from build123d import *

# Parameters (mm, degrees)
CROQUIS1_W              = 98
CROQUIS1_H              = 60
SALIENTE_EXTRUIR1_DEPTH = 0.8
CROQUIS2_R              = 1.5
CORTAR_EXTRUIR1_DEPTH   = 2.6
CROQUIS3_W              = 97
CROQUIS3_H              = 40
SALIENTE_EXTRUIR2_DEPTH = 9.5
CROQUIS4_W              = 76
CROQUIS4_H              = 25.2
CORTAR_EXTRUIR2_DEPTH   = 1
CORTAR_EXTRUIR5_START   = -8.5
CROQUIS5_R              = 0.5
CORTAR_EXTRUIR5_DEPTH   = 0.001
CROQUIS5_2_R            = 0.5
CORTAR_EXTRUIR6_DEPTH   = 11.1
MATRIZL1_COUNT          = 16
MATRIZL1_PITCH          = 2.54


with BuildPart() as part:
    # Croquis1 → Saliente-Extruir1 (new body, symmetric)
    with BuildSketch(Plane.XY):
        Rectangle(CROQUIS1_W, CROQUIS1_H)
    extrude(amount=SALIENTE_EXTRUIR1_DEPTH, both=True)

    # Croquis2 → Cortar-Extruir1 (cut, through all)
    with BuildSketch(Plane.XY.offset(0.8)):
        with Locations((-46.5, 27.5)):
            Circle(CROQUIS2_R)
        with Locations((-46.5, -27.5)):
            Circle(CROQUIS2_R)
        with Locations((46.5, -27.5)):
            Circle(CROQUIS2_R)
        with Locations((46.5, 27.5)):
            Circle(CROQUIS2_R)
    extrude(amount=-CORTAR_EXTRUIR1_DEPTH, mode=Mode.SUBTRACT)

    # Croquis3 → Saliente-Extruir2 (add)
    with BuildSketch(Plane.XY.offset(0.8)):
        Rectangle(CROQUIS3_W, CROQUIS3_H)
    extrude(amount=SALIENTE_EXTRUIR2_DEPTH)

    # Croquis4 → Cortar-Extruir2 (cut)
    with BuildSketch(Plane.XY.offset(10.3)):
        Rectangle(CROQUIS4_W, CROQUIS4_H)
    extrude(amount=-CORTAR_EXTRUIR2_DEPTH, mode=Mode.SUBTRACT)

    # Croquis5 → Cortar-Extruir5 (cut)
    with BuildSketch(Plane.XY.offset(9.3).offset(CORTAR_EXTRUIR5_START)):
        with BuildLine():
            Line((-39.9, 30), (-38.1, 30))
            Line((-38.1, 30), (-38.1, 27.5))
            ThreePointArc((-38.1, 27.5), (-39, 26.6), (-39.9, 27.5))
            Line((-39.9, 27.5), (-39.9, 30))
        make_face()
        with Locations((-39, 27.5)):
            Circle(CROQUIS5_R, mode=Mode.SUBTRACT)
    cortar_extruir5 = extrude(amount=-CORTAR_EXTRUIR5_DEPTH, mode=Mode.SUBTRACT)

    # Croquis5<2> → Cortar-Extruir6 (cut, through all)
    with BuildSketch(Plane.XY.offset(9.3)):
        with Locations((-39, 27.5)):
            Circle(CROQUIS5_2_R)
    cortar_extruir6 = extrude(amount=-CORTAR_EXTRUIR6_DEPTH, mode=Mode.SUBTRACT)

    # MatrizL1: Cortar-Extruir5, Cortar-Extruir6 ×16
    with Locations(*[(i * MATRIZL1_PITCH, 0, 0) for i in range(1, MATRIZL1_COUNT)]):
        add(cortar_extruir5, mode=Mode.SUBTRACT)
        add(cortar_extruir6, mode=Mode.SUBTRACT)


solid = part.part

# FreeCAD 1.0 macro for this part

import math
import FreeCAD as App
import Part
import Sketcher

doc = App.newDocument("Part")
body = doc.addObject("PartDesign::Body", "Body")

# Sketch on XY plane
sketch1 = body.newObject("Sketcher::SketchObject", "Sketch")
sketch1.AttachmentSupport = (doc.getObject("XY_Plane"), [""])
sketch1.MapMode = "FlatFace"
sketch1.addGeometry(Part.LineSegment(App.Vector(-49, 30, 0), App.Vector(-49, -30, 0)), False)
sketch1.addGeometry(Part.LineSegment(App.Vector(-49, -30, 0), App.Vector(49, -30, 0)), False)
sketch1.addGeometry(Part.LineSegment(App.Vector(49, -30, 0), App.Vector(49, 30, 0)), False)
sketch1.addGeometry(Part.LineSegment(App.Vector(49, 30, 0), App.Vector(-49, 30, 0)), False)
sketch1.addConstraint(Sketcher.Constraint("Coincident", 0, 2, 1, 1))
sketch1.addConstraint(Sketcher.Constraint("Coincident", 1, 2, 2, 1))
sketch1.addConstraint(Sketcher.Constraint("Coincident", 2, 2, 3, 1))
sketch1.addConstraint(Sketcher.Constraint("Coincident", 3, 2, 0, 1))
sketch1.addConstraint(Sketcher.Constraint("Vertical", 0))
sketch1.addConstraint(Sketcher.Constraint("Horizontal", 1))
sketch1.addConstraint(Sketcher.Constraint("Vertical", 2))
sketch1.addConstraint(Sketcher.Constraint("Horizontal", 3))
sketch1.addConstraint(Sketcher.Constraint("Symmetric", 0, 2, 2, 2, -1, 1))
sketch1.addConstraint(Sketcher.Constraint("DistanceX", 1, 1, 1, 2, 98.0))
sketch1.addConstraint(Sketcher.Constraint("DistanceY", 0, 2, 0, 1, 60.0))
pad1 = body.newObject("PartDesign::Pad", "Pad")
pad1.Profile = sketch1
pad1.Length = 1.6
pad1.Midplane = True

# Sketch on XY plane
sketch2 = body.newObject("Sketcher::SketchObject", "Sketch001")
sketch2.AttachmentSupport = (doc.getObject("XY_Plane"), [""])
sketch2.MapMode = "FlatFace"
sketch2.AttachmentOffset = App.Placement(App.Vector(0, 0, 0.8), App.Rotation())
sketch2.addGeometry(Part.Circle(App.Vector(-46.5, 27.5, 0), App.Vector(0, 0, 1), 1.5), False)
sketch2.addGeometry(Part.Circle(App.Vector(-46.5, -27.5, 0), App.Vector(0, 0, 1), 1.5), False)
sketch2.addGeometry(Part.Circle(App.Vector(46.5, -27.5, 0), App.Vector(0, 0, 1), 1.5), False)
sketch2.addGeometry(Part.Circle(App.Vector(46.5, 27.5, 0), App.Vector(0, 0, 1), 1.5), False)
sketch2.addConstraint(Sketcher.Constraint("Equal", 0, 1))
sketch2.addConstraint(Sketcher.Constraint("Equal", 1, 2))
sketch2.addConstraint(Sketcher.Constraint("Equal", 2, 3))
sketch2.addConstraint(Sketcher.Constraint("Symmetric", 0, 3, 2, 3, -1, 1))
sketch2.addConstraint(Sketcher.Constraint("Symmetric", 1, 3, 3, 3, -1, 1))
sketch2.addConstraint(Sketcher.Constraint("Symmetric", 1, 3, 2, 3, -2))
sketch2.addConstraint(Sketcher.Constraint("Diameter", 0, 3.0))
sketch2.addConstraint(Sketcher.Constraint("DistanceY", 1, 3, 0, 3, 55.0))
sketch2.addConstraint(Sketcher.Constraint("DistanceX", 1, 3, 2, 3, 93.0))
pocket1 = body.newObject("PartDesign::Pocket", "Pocket")
pocket1.Profile = sketch2
pocket1.Type = "ThroughAll"

# Sketch on XY plane
sketch3 = body.newObject("Sketcher::SketchObject", "Sketch002")
sketch3.AttachmentSupport = (doc.getObject("XY_Plane"), [""])
sketch3.MapMode = "FlatFace"
sketch3.AttachmentOffset = App.Placement(App.Vector(0, 0, 0.8), App.Rotation())
sketch3.addGeometry(Part.LineSegment(App.Vector(-48, 20, 0), App.Vector(-48, -20, 0)), False)
sketch3.addGeometry(Part.LineSegment(App.Vector(-48, -20, 0), App.Vector(48, -20, 0)), False)
sketch3.addGeometry(Part.LineSegment(App.Vector(48, -20, 0), App.Vector(48, 20, 0)), False)
sketch3.addGeometry(Part.LineSegment(App.Vector(48, 20, 0), App.Vector(-48, 20, 0)), False)
sketch3.addConstraint(Sketcher.Constraint("Coincident", 0, 2, 1, 1))
sketch3.addConstraint(Sketcher.Constraint("Coincident", 1, 2, 2, 1))
sketch3.addConstraint(Sketcher.Constraint("Coincident", 2, 2, 3, 1))
sketch3.addConstraint(Sketcher.Constraint("Coincident", 3, 2, 0, 1))
sketch3.addConstraint(Sketcher.Constraint("Vertical", 0))
sketch3.addConstraint(Sketcher.Constraint("Horizontal", 1))
sketch3.addConstraint(Sketcher.Constraint("Vertical", 2))
sketch3.addConstraint(Sketcher.Constraint("Horizontal", 3))
sketch3.addConstraint(Sketcher.Constraint("Symmetric", 0, 2, 2, 2, -1, 1))
sketch3.addConstraint(Sketcher.Constraint("DistanceX", 1, 1, 1, 2, 97.0))
sketch3.addConstraint(Sketcher.Constraint("DistanceY", 0, 2, 0, 1, 40.0))
pad2 = body.newObject("PartDesign::Pad", "Pad001")
pad2.Profile = sketch3
pad2.Length = 9.5

# Sketch on XY plane
sketch4 = body.newObject("Sketcher::SketchObject", "Sketch003")
sketch4.AttachmentSupport = (doc.getObject("XY_Plane"), [""])
sketch4.MapMode = "FlatFace"
sketch4.AttachmentOffset = App.Placement(App.Vector(0, 0, 10.3), App.Rotation())
sketch4.addGeometry(Part.LineSegment(App.Vector(-38, 13, 0), App.Vector(-38, -13, 0)), False)
sketch4.addGeometry(Part.LineSegment(App.Vector(-38, -13, 0), App.Vector(38, -13, 0)), False)
sketch4.addGeometry(Part.LineSegment(App.Vector(38, -13, 0), App.Vector(38, 13, 0)), False)
sketch4.addGeometry(Part.LineSegment(App.Vector(38, 13, 0), App.Vector(-38, 13, 0)), False)
sketch4.addConstraint(Sketcher.Constraint("Coincident", 0, 2, 1, 1))
sketch4.addConstraint(Sketcher.Constraint("Coincident", 1, 2, 2, 1))
sketch4.addConstraint(Sketcher.Constraint("Coincident", 2, 2, 3, 1))
sketch4.addConstraint(Sketcher.Constraint("Coincident", 3, 2, 0, 1))
sketch4.addConstraint(Sketcher.Constraint("Vertical", 0))
sketch4.addConstraint(Sketcher.Constraint("Horizontal", 1))
sketch4.addConstraint(Sketcher.Constraint("Vertical", 2))
sketch4.addConstraint(Sketcher.Constraint("Horizontal", 3))
sketch4.addConstraint(Sketcher.Constraint("Symmetric", 0, 2, 2, 2, -1, 1))
sketch4.addConstraint(Sketcher.Constraint("DistanceX", 1, 1, 1, 2, 76.0))
sketch4.addConstraint(Sketcher.Constraint("DistanceY", 0, 2, 0, 1, 25.2))
pocket2 = body.newObject("PartDesign::Pocket", "Pocket001")
pocket2.Profile = sketch4
pocket2.Length = 1

# Sketch on XY plane
sketch5 = body.newObject("Sketcher::SketchObject", "Sketch004")
sketch5.AttachmentSupport = (doc.getObject("XY_Plane"), [""])
sketch5.MapMode = "FlatFace"
sketch5.AttachmentOffset = App.Placement(App.Vector(0, 0, 0.8), App.Rotation())
sketch5.addGeometry(Part.LineSegment(App.Vector(-38.1, 30, 0), App.Vector(-39.9, 30, 0)), False)
sketch5.addGeometry(Part.LineSegment(App.Vector(-39.9, 30, 0), App.Vector(-39.9, 27.5, 0)), False)
sketch5.addGeometry(Part.ArcOfCircle(Part.Circle(App.Vector(-39, 27.5, 0), App.Vector(0, 0, 1), 0.9), math.radians(180), math.radians(360)), False)
sketch5.addGeometry(Part.LineSegment(App.Vector(-38.1, 27.5, 0), App.Vector(-38.1, 30, 0)), False)
sketch5.addGeometry(Part.Circle(App.Vector(-39, 27.5, 0), App.Vector(0, 0, 1), 0.5), False)
sketch5.addConstraint(Sketcher.Constraint("Coincident", 0, 2, 1, 1))
sketch5.addConstraint(Sketcher.Constraint("Tangent", 1, 2, 2, 1))
sketch5.addConstraint(Sketcher.Constraint("Tangent", 2, 2, 3, 1))
sketch5.addConstraint(Sketcher.Constraint("Coincident", 3, 2, 0, 1))
sketch5.addConstraint(Sketcher.Constraint("Horizontal", 0))
sketch5.addConstraint(Sketcher.Constraint("Vertical", 1))
sketch5.addConstraint(Sketcher.Constraint("Vertical", 3))
sketch5.addConstraint(Sketcher.Constraint("Coincident", 4, 3, 2, 3))
sketch5.addConstraint(Sketcher.Constraint("Diameter", 4, 1.0))
sketch5.addConstraint(Sketcher.Constraint("Radius", 2, 0.9))
sketch5.addConstraint(Sketcher.Constraint("DistanceY", 1, 2, 1, 1, 2.5))
sketch5.addConstraint(Sketcher.Constraint("DistanceX", 2, 3, -1, 1, 39.0))
sketch5.addConstraint(Sketcher.Constraint("DistanceY", -1, 1, 0, 2, 30.0))
pocket3 = body.newObject("PartDesign::Pocket", "Pocket002")
pocket3.Profile = sketch5
pocket3.Length = 0.001

# Sketch on XY plane
sketch6 = body.newObject("Sketcher::SketchObject", "Sketch005")
sketch6.AttachmentSupport = (doc.getObject("XY_Plane"), [""])
sketch6.MapMode = "FlatFace"
sketch6.AttachmentOffset = App.Placement(App.Vector(0, 0, 9.3), App.Rotation())
sketch6.addGeometry(Part.Circle(App.Vector(-39, 27.5, 0), App.Vector(0, 0, 1), 0.5), False)
sketch6.addConstraint(Sketcher.Constraint("Diameter", 0, 1.0))
sketch6.addConstraint(Sketcher.Constraint("DistanceX", 0, 3, -1, 1, 39.0))
sketch6.addConstraint(Sketcher.Constraint("DistanceY", -1, 1, 0, 3, 27.5))
pocket4 = body.newObject("PartDesign::Pocket", "Pocket003")
pocket4.Profile = sketch6
pocket4.Type = "ThroughAll"
doc.recompute()

linearpattern = body.newObject("PartDesign::LinearPattern", "LinearPattern")
linearpattern.Originals = [pocket3, pocket4]
linearpattern.Direction = (doc.getObject("X_Axis"), [""])
linearpattern.Mode = "offset"
linearpattern.Offset = 2.54
linearpattern.Occurrences = 16
body.Tip = linearpattern

doc.recompute()
